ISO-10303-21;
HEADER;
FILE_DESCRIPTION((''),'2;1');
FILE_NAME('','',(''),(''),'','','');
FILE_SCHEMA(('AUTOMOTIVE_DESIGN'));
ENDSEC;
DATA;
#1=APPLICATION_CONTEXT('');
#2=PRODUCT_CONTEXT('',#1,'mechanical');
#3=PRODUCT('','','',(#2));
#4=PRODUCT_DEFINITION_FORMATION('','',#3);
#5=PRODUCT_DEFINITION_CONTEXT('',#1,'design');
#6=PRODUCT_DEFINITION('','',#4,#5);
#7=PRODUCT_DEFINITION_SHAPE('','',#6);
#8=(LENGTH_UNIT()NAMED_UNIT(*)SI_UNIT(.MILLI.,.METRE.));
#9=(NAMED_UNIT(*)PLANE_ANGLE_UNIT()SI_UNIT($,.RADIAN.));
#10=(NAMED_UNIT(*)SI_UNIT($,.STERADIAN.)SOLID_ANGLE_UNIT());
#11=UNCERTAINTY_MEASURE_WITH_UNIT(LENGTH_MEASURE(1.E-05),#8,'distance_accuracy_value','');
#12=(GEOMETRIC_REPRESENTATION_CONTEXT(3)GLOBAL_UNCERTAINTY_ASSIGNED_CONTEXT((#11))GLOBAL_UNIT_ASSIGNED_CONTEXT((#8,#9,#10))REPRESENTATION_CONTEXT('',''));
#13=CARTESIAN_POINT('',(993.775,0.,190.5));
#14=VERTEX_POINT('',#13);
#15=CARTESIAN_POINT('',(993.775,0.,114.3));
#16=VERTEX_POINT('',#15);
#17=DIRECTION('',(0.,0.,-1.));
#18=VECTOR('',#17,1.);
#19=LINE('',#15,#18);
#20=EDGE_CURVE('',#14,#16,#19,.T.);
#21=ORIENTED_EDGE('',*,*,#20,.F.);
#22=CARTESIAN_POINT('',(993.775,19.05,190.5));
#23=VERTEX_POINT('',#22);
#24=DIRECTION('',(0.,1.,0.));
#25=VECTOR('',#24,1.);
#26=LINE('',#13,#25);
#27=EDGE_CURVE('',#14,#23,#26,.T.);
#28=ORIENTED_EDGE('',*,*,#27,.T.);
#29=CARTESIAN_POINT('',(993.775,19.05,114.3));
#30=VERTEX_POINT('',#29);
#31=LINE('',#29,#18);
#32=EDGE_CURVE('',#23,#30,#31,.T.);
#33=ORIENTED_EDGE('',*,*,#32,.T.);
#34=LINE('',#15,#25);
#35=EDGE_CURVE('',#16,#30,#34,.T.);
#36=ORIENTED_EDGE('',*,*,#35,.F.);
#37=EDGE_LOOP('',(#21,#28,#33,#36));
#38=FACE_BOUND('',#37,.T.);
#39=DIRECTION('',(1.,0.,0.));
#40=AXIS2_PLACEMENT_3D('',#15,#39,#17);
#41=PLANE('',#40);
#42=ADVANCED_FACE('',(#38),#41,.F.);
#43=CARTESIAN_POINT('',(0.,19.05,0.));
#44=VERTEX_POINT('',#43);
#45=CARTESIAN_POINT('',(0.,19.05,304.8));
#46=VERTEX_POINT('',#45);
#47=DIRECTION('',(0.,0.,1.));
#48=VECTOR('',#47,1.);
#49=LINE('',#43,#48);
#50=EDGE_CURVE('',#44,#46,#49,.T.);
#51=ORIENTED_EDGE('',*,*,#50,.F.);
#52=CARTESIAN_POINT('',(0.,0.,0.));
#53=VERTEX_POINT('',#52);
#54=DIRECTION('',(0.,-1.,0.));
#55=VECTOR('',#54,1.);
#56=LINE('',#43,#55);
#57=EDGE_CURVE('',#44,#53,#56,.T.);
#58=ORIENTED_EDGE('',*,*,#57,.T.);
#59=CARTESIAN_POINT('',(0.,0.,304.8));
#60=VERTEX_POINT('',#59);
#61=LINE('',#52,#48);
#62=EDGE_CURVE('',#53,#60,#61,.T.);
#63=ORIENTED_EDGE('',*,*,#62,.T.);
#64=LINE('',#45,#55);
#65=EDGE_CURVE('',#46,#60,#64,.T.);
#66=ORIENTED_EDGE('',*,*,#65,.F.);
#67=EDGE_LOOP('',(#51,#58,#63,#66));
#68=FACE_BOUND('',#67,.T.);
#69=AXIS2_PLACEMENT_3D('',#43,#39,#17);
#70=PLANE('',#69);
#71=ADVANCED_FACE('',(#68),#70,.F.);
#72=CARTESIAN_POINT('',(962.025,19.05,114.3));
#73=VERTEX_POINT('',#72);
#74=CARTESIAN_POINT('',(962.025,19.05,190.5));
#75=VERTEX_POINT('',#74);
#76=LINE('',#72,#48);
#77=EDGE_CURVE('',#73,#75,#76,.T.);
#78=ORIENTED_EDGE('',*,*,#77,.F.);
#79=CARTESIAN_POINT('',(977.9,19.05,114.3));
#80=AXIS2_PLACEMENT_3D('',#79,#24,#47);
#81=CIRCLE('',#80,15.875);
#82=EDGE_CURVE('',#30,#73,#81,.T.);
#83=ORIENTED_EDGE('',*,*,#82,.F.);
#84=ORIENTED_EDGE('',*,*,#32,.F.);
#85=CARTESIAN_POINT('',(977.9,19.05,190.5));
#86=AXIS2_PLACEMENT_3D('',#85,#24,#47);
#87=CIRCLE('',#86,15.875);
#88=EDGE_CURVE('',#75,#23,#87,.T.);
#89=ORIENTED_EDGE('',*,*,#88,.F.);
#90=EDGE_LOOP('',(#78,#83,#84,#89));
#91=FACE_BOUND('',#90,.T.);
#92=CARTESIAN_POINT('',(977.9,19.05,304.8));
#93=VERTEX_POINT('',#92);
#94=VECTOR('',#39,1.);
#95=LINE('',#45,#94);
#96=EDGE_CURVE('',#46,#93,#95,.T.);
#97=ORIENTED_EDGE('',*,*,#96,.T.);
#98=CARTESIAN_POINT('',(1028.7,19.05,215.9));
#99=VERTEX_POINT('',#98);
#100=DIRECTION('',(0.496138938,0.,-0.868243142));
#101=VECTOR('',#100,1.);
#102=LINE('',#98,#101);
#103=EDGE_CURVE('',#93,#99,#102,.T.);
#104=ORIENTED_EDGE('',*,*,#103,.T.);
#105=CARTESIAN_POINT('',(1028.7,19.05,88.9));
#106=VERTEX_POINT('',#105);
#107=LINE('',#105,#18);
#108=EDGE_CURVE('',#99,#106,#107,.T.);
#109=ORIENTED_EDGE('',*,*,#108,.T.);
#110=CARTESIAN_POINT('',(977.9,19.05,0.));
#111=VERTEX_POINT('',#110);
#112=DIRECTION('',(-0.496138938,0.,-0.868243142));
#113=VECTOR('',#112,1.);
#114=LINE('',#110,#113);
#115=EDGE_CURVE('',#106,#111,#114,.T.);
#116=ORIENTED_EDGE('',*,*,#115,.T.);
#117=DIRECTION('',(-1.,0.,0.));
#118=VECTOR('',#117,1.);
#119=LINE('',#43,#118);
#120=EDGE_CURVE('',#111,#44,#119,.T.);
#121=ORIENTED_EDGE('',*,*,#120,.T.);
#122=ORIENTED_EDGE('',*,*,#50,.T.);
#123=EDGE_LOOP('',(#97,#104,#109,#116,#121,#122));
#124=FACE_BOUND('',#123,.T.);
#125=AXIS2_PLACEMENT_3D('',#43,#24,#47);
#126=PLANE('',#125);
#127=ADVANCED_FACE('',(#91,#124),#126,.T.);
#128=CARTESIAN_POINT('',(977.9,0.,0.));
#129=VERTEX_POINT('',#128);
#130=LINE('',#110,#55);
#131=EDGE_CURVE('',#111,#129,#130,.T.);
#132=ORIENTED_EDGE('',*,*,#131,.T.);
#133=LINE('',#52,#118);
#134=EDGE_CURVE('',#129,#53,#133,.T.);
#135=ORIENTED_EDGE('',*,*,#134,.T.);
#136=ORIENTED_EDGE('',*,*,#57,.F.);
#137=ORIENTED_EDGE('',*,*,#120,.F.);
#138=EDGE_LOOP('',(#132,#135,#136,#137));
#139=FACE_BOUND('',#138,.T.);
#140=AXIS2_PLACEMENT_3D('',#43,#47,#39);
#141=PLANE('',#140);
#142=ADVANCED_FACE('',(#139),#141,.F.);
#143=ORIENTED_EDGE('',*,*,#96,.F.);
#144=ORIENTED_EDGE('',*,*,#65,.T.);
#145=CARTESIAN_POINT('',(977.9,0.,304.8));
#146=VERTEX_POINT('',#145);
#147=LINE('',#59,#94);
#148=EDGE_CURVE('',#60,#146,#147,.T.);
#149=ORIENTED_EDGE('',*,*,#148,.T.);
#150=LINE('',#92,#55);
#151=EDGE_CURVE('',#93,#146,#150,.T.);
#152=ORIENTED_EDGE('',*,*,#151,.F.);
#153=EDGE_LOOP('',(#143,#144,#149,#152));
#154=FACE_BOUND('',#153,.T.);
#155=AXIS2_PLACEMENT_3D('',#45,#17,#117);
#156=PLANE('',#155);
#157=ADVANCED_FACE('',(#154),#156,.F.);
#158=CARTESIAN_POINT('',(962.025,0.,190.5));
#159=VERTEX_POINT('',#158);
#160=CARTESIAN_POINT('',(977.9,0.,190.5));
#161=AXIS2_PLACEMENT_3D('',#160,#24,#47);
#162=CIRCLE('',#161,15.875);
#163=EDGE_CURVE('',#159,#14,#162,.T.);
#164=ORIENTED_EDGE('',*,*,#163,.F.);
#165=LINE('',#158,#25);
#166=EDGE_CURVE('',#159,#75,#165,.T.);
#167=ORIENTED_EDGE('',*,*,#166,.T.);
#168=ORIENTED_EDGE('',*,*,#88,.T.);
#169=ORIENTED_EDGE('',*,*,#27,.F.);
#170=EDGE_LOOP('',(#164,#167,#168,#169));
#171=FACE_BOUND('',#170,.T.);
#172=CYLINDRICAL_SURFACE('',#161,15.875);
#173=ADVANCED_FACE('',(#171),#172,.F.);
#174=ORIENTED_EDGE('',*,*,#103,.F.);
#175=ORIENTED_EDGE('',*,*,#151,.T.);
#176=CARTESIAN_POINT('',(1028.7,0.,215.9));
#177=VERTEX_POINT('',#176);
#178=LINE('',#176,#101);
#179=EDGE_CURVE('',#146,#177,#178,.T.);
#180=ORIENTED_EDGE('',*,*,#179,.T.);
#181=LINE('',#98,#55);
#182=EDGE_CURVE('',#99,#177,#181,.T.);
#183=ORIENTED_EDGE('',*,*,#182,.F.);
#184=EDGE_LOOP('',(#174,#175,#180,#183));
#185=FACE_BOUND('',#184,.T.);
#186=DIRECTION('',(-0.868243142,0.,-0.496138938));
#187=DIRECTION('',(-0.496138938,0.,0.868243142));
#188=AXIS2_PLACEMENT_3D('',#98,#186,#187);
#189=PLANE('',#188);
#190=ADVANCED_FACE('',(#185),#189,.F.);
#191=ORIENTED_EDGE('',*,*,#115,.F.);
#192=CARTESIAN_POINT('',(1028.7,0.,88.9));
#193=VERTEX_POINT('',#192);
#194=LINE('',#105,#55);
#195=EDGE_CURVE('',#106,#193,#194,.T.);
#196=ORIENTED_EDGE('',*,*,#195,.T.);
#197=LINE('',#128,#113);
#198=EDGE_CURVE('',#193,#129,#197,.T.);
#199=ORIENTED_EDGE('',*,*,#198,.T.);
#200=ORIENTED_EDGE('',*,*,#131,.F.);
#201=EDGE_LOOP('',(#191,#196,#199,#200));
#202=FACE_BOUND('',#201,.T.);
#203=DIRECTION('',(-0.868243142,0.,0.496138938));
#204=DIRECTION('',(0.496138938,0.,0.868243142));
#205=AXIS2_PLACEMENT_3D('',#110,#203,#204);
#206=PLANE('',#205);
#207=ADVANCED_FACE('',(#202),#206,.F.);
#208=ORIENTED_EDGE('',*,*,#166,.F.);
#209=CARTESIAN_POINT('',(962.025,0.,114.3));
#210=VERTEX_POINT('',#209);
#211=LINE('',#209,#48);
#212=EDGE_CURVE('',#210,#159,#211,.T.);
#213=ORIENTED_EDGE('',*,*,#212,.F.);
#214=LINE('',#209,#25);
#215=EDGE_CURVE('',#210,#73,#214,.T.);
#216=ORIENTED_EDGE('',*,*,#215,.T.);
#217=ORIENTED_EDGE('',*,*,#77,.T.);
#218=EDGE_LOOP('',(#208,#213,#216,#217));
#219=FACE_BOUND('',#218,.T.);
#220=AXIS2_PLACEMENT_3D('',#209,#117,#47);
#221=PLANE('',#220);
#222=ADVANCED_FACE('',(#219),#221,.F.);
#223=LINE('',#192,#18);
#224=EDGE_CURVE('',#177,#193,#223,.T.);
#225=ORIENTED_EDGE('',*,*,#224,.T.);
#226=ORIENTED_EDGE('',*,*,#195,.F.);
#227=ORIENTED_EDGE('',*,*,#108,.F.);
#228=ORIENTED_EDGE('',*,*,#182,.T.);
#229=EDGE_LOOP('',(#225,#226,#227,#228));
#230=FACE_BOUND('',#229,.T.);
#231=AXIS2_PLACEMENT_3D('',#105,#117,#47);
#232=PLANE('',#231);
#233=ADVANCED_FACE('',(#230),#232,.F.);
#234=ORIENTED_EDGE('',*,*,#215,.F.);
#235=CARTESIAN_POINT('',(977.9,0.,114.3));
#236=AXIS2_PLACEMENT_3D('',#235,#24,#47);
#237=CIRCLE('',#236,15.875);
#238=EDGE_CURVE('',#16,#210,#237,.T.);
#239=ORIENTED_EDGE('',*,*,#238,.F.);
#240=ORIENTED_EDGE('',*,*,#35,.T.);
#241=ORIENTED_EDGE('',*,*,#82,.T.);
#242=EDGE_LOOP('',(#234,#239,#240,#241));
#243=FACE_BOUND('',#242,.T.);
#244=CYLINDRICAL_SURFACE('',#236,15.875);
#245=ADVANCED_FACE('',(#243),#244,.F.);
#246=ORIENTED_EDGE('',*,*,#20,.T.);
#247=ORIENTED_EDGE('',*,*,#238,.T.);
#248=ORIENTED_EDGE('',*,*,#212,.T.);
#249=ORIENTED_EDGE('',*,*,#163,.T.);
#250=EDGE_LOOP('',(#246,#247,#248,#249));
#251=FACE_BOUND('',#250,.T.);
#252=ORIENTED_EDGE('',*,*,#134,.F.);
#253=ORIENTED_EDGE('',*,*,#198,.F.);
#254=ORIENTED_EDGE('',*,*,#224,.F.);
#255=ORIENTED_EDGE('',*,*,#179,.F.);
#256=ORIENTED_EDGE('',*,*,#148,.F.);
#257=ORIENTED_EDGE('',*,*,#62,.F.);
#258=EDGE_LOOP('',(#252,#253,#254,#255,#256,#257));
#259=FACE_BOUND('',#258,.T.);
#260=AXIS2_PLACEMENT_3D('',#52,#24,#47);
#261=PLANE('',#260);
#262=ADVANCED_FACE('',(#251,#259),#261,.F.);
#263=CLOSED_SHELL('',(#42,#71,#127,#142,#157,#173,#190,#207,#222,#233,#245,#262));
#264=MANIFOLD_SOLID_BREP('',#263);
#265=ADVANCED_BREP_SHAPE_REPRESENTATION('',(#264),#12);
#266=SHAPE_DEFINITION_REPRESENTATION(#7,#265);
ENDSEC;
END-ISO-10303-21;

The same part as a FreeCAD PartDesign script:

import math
import FreeCAD as App
import Part
import Sketcher

V = App.Vector
Q = App.Units.Quantity

doc = App.newDocument("Part")
body = doc.addObject("PartDesign::Body", "Body")

sketch1 = body.newObject("Sketcher::SketchObject", "Sketch")
sketch1.AttachmentSupport = (doc.getObject("XZ_Plane"), [""])
sketch1.MapMode = "FlatFace"
sketch1.addGeometry([
    Part.LineSegment(V(978, 0, 0), V(0, 0, 0)),
    Part.LineSegment(V(0, 0, 0), V(0, 305, 0)),
    Part.LineSegment(V(0, 305, 0), V(978, 305, 0)),
    Part.LineSegment(V(978, 305, 0), V(1029, 216, 0)),
    Part.LineSegment(V(1029, 216, 0), V(1029, 89, 0)),
    Part.LineSegment(V(1029, 89, 0), V(978, 0, 0)),
], False)
sketch1.addConstraint([
    Sketcher.Constraint("Coincident", 0, 2, 1, 1),
    Sketcher.Constraint("Coincident", 1, 2, 2, 1),
    Sketcher.Constraint("Coincident", 2, 2, 3, 1),
    Sketcher.Constraint("Coincident", 3, 2, 4, 1),
    Sketcher.Constraint("Coincident", 4, 2, 5, 1),
    Sketcher.Constraint("Coincident", 5, 2, 0, 1),
    Sketcher.Constraint("Horizontal", 0),
    Sketcher.Constraint("Vertical", 1),
    Sketcher.Constraint("Horizontal", 2),
    Sketcher.Constraint("Vertical", 4),
    Sketcher.Constraint("Coincident", 0, 2, -1, 1),
    Sketcher.Constraint("Vertical", 2, 2, 5, 2),
    Sketcher.Constraint("Equal", 3, 5),
    Sketcher.Constraint("DistanceY", 1, 1, 1, 2, Q("12 in")),
    Sketcher.Constraint("DistanceY", 4, 2, 4, 1, Q("5 in")),
    Sketcher.Constraint("DistanceX", 0, 2, 0, 1, Q("38.5 in")),
    Sketcher.Constraint("DistanceX", 2, 2, 3, 2, Q("2 in")),
])
pad1 = body.newObject("PartDesign::Pad", "Pad")
pad1.Profile = sketch1
pad1.Length = Q("0.75 in")
pad1.Reversed = True

sketch2 = body.newObject("Sketcher::SketchObject", "Sketch001")
sketch2.AttachmentSupport = (doc.getObject("XZ_Plane"), [""])
sketch2.MapMode = "FlatFace"
sketch2.AttachmentOffset = App.Placement(V(0, 0, -0.75 * 25.4), App.Rotation())
sketch2.addGeometry([
    Part.LineSegment(V(994, 190, 0), V(994, 114, 0)),
    Part.ArcOfCircle(Part.Circle(V(978, 114, 0), V(0, 0, 1), 16), math.radians(180), math.radians(360)),
    Part.LineSegment(V(962, 114, 0), V(962, 190, 0)),
    Part.ArcOfCircle(Part.Circle(V(978, 190, 0), V(0, 0, 1), 16), math.radians(0), math.radians(180)),
], False)
sketch2.addConstraint([
    Sketcher.Constraint("Tangent", 0, 2, 1, 2),
    Sketcher.Constraint("Tangent", 1, 1, 2, 1),
    Sketcher.Constraint("Tangent", 2, 2, 3, 2),
    Sketcher.Constraint("Tangent", 3, 1, 0, 1),
    Sketcher.Constraint("Vertical", 0),
    Sketcher.Constraint("Vertical", 2),
    Sketcher.Constraint("DistanceY", 0, 2, 0, 1, Q("3 in")),
    Sketcher.Constraint("Radius", 1, Q("0.625 in")),
    Sketcher.Constraint("DistanceX", -1, 1, 1, 3, Q("38.5 in")),
    Sketcher.Constraint("DistanceY", -1, 1, 1, 3, Q("4.5 in")),
])
pocket1 = body.newObject("PartDesign::Pocket", "Pocket")
pocket1.Profile = sketch2
pocket1.Length = Q("0.75 in")
pocket1.Reversed = True

doc.recompute()
